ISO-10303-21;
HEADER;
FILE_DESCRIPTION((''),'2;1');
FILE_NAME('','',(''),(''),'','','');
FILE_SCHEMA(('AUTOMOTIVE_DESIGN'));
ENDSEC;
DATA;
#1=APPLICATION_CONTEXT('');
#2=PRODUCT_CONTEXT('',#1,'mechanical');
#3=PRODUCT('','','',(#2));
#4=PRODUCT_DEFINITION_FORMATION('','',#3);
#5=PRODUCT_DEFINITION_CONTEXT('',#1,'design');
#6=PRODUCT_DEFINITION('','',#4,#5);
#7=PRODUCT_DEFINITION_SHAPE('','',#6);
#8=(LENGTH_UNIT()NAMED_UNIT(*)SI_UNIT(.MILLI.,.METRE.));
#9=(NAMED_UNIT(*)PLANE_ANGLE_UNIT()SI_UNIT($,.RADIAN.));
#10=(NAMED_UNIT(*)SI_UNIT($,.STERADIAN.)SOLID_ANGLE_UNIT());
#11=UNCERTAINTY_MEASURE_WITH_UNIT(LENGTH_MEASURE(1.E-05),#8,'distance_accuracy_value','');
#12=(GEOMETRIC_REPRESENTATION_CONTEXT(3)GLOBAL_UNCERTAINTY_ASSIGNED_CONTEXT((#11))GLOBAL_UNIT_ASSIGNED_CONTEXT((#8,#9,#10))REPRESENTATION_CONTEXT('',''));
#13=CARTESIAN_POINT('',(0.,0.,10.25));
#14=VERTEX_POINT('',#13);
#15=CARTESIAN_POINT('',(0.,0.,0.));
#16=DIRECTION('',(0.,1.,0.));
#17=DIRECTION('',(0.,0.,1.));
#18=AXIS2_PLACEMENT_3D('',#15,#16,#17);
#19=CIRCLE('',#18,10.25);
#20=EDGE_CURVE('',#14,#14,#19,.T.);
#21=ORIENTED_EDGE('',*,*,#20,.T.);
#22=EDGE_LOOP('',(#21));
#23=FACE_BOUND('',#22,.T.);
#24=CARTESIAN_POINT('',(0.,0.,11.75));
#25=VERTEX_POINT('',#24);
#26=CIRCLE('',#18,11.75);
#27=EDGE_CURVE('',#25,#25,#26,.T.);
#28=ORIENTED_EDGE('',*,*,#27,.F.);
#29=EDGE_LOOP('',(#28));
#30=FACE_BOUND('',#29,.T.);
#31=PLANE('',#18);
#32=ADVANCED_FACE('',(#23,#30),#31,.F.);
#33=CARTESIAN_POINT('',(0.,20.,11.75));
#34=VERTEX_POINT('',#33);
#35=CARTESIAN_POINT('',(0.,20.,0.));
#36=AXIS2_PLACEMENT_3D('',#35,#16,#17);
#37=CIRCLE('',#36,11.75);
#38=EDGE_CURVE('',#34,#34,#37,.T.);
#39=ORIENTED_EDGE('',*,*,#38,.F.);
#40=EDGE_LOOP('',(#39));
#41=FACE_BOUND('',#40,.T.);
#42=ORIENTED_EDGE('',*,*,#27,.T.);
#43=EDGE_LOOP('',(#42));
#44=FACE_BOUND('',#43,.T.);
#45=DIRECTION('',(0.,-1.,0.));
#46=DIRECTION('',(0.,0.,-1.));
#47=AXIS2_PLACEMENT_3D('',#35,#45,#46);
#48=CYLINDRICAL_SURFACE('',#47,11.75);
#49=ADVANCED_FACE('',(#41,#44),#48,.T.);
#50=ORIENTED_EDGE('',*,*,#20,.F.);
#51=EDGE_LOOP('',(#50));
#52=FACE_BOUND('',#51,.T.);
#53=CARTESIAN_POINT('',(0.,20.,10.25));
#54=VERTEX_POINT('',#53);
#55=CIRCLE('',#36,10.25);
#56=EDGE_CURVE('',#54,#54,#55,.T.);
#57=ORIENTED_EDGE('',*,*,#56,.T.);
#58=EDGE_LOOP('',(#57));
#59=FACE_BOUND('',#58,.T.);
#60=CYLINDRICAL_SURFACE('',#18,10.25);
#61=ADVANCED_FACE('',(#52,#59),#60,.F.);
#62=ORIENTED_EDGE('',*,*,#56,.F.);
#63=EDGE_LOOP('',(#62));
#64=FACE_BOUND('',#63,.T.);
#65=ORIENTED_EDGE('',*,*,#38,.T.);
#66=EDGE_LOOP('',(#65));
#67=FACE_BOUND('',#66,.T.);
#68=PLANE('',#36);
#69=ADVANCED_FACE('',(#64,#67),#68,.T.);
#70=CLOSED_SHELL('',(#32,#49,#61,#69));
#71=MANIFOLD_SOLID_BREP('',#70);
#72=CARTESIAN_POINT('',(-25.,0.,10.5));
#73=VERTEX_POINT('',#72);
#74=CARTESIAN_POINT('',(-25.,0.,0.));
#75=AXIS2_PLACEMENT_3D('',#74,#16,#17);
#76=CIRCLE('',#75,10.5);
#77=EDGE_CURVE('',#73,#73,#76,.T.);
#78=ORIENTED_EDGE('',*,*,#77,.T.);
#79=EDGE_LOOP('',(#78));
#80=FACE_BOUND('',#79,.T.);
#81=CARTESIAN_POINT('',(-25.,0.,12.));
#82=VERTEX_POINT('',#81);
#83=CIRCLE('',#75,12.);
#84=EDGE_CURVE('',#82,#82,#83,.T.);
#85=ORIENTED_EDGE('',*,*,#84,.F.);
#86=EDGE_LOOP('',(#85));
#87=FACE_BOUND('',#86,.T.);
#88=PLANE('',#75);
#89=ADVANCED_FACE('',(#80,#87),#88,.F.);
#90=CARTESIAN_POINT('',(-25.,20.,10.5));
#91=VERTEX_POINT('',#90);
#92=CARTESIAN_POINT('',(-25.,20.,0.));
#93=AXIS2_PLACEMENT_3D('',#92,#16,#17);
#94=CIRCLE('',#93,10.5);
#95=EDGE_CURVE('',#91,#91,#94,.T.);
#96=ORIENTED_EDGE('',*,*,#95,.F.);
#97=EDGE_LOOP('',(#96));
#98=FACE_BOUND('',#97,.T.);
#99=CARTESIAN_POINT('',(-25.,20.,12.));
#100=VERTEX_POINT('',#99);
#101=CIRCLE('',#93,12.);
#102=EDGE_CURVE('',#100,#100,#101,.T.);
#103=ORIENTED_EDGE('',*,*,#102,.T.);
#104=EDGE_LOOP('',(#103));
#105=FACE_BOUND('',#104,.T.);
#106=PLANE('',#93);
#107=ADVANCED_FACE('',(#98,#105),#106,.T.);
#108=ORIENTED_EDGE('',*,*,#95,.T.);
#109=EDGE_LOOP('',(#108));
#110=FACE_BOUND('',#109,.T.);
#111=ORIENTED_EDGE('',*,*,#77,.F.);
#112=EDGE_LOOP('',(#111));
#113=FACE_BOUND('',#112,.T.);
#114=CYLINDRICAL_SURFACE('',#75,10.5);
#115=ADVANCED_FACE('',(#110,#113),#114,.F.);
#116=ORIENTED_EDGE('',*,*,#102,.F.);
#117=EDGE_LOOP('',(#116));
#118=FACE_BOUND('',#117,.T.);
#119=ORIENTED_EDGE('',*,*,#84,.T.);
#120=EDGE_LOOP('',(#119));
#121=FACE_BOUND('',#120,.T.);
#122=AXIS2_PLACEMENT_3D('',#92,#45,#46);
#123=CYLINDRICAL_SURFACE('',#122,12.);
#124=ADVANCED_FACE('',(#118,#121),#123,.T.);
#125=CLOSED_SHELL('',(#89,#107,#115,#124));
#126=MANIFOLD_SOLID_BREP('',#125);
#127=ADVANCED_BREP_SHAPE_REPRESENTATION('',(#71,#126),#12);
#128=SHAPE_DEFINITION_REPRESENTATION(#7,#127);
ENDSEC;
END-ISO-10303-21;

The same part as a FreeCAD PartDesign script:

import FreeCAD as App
import Part
import Sketcher
Q = App.Units.Quantity

doc = App.newDocument("Part")
body = doc.addObject("PartDesign::Body", "Body")

sketch1 = doc.addObject("Sketcher::SketchObject", "Sketch")
body.addObject(sketch1)
sketch1.AttachmentSupport = (doc.XZ_Plane, [""])
sketch1.MapMode = "FlatFace"
sketch1.addGeometry(Part.Circle(App.Vector(0, 0, 0), App.Vector(0, 0, 1), 12), False)
sketch1.addConstraint([
    Sketcher.Constraint("Coincident", 0, 3, -1, 1),
    Sketcher.Constraint("Diameter", 0, Q("23.5 mm")),
])
pad1 = doc.addObject("PartDesign::Pad", "Pad")
body.addObject(pad1)
pad1.Profile = sketch1
pad1.Length = 20
pad1.Reversed = True

sketch2 = doc.addObject("Sketcher::SketchObject", "Sketch001")
body.addObject(sketch2)
sketch2.AttachmentSupport = (doc.XZ_Plane, [""])
sketch2.MapMode = "FlatFace"
sketch2.AttachmentOffset = App.Placement(App.Vector(0, 0, -20), App.Rotation())
sketch2.addGeometry(Part.Circle(App.Vector(0, 0, 0), App.Vector(0, 0, 1), 10), False)
sketch2.addConstraint([
    Sketcher.Constraint("Coincident", 0, 3, -1, 1),
    Sketcher.Constraint("Diameter", 0, Q("20.5 mm")),
])
pocket1 = doc.addObject("PartDesign::Pocket", "Pocket")
body.addObject(pocket1)
pocket1.Profile = sketch2
pocket1.Type = "ThroughAll"
pocket1.Midplane = True
body2 = doc.addObject("PartDesign::Body", "Body001")

sketch3 = doc.addObject("Sketcher::SketchObject", "Sketch002")
body2.addObject(sketch3)
sketch3.AttachmentSupport = (doc.getObject("XZ_Plane001"), [""])
sketch3.MapMode = "FlatFace"
sketch3.addGeometry(Part.Circle(App.Vector(-25, 0, 0), App.Vector(0, 0, 1), 12), False)
sketch3.addConstraint([
    Sketcher.Constraint("PointOnObject", 0, 3, -1),
    Sketcher.Constraint("Diameter", 0, Q("24 mm")),
    Sketcher.Constraint("DistanceX", 0, 3, -1, 1, Q("25 mm")),
])
pad2 = doc.addObject("PartDesign::Pad", "Pad001")
body2.addObject(pad2)
pad2.Profile = sketch3
pad2.Length = 20
pad2.Reversed = True

sketch4 = doc.addObject("Sketcher::SketchObject", "Sketch003")
body2.addObject(sketch4)
sketch4.AttachmentSupport = (doc.getObject("XZ_Plane001"), [""])
sketch4.MapMode = "FlatFace"
sketch4.AttachmentOffset = App.Placement(App.Vector(0, 0, -20), App.Rotation())
sketch4.addGeometry(Part.Circle(App.Vector(-25, 0, 0), App.Vector(0, 0, 1), 10), False)
sketch4.addConstraint([
    Sketcher.Constraint("PointOnObject", 0, 3, -1),
    Sketcher.Constraint("Diameter", 0, Q("21 mm")),
    Sketcher.Constraint("DistanceX", 0, 3, -1, 1, Q("25 mm")),
])
pocket2 = doc.addObject("PartDesign::Pocket", "Pocket001")
body2.addObject(pocket2)
pocket2.Profile = sketch4
pocket2.Type = "ThroughAll"
pocket2.Midplane = True

doc.recompute()
